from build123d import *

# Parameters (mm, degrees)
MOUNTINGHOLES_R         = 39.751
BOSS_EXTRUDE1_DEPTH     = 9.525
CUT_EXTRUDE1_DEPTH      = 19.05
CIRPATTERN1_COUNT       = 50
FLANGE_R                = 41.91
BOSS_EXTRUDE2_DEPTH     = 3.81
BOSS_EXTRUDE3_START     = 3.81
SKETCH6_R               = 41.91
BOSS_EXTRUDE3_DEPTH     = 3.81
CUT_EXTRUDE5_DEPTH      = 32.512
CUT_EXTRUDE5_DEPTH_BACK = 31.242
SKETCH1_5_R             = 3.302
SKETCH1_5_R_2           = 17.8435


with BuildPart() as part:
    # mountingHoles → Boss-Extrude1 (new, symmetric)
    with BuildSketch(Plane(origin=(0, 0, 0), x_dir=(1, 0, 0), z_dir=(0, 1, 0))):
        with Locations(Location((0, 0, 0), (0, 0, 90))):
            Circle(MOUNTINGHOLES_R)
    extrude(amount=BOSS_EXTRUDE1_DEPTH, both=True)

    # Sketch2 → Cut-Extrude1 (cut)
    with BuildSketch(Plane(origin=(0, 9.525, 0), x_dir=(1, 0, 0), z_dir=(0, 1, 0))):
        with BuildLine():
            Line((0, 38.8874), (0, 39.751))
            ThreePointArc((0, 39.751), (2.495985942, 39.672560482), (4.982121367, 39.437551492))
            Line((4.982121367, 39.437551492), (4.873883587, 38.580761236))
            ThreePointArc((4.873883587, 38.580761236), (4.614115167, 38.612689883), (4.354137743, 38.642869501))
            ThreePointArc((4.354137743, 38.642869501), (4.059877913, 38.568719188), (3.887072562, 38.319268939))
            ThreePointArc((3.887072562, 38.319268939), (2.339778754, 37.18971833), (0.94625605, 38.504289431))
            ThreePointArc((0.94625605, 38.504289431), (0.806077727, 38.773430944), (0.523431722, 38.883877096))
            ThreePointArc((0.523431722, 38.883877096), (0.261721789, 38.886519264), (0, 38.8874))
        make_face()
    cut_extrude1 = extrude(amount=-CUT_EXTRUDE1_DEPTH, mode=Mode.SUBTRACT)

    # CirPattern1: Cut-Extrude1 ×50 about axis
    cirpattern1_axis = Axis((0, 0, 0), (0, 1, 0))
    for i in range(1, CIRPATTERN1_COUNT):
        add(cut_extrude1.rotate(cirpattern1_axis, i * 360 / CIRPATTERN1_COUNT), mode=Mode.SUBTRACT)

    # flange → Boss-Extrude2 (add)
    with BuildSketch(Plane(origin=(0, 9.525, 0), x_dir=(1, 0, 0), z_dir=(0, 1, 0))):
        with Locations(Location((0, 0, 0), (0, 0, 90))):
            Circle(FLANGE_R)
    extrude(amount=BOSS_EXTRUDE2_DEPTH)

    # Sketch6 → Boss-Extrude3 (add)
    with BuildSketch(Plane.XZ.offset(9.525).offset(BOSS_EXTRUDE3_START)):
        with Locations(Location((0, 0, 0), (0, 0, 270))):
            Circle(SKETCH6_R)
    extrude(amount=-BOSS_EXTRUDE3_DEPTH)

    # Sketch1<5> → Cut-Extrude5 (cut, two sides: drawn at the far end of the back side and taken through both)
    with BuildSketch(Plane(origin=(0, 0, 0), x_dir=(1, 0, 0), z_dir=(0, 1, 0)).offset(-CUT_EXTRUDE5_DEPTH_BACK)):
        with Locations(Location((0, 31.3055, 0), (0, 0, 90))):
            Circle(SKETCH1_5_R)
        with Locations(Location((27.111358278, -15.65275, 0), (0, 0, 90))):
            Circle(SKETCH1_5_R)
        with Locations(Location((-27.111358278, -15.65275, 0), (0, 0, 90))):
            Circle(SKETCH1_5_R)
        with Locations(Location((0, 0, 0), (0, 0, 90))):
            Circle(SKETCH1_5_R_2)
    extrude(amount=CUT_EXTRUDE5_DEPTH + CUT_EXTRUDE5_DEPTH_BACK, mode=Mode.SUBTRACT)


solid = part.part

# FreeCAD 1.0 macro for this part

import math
import FreeCAD as App
import Part
import Sketcher
from FreeCAD import Vector
Q = App.Units.Quantity

doc = App.newDocument("Part")
body = doc.addObject("PartDesign::Body", "Body")

# Sketch on XZ plane
sketch1 = body.newObject("Sketcher::SketchObject", "Sketch")
sketch1.AttachmentSupport = (doc.getObject("XZ_Plane"), [""])
sketch1.MapMode = "FlatFace"
sketch1.addGeometry(Part.Circle(Vector(0, 0, 0), Vector(0, 0, 1), 40), False)
sketch1.addConstraint([
    Sketcher.Constraint("Coincident", 0, 3, -1, 1),
    Sketcher.Constraint("Diameter", 0, Q("3.13 in")),
])
pad1 = body.newObject("PartDesign::Pad", "Pad")
pad1.Profile = sketch1
pad1.Length = Q("0.75 in")
pad1.Midplane = True

# Sketch on XZ plane
sketch2 = body.newObject("Sketcher::SketchObject", "Sketch001")
sketch2.AttachmentSupport = (doc.getObject("XZ_Plane"), [""])
sketch2.MapMode = "FlatFace"
sketch2.AttachmentOffset = App.Placement(Vector(0, 0, -0.375 * 25.4), App.Rotation())
sketch2.addGeometry([
    Part.LineSegment(Vector(0, -39.75, 0), Vector(0, -38.89, 0)),  # 0
    Part.ArcOfCircle(Part.Circle(Vector(0, 0, 0), Vector(0, 0, 1), 38.89), math.radians(-90), math.radians(-89.23)),  # 1
    Part.ArcOfCircle(Part.Circle(Vector(0.52, -38.45, 0), Vector(0, 0, 1), 0.43), math.radians(-89), math.radians(-7)),  # 2
    Part.ArcOfCircle(Part.Circle(Vector(2.43, -38.69, 0), Vector(0, 0, 1), 1.5), math.radians(14), math.radians(173)),  # 3
    Part.ArcOfCircle(Part.Circle(Vector(4.31, -38.21, 0), Vector(0, 0, 1), 0.43), math.radians(-166), math.radians(-84)),  # 4
    Part.ArcOfCircle(Part.Circle(Vector(0, 0, 0), Vector(0, 0, 1), 38.89), math.radians(-83.57), math.radians(-82.8)),  # 5
    Part.LineSegment(Vector(4.87, -38.58, 0), Vector(4.98, -39.44, 0)),  # 6
    Part.ArcOfCircle(Part.Circle(Vector(0, 0, 0), Vector(0, 0, 1), 39.75), math.radians(-90), math.radians(-82.8)),  # 7
], False)
sketch2.addConstraint([
    Sketcher.Constraint("Coincident", 0, 2, 1, 1),
    Sketcher.Constraint("Tangent", 1, 2, 2, 1),
    Sketcher.Constraint("Tangent", 2, 2, 3, 2),
    Sketcher.Constraint("Tangent", 3, 1, 4, 1),
    Sketcher.Constraint("Tangent", 4, 2, 5, 1),
    Sketcher.Constraint("Coincident", 5, 2, 6, 1),
    Sketcher.Constraint("Coincident", 6, 2, 7, 2),
    Sketcher.Constraint("Coincident", 7, 1, 0, 1),
    Sketcher.Constraint("Vertical", 0),
    Sketcher.Constraint("Coincident", 1, 3, -1, 1),
    Sketcher.Constraint("Coincident", 5, 3, -1, 1),
    Sketcher.Constraint("Coincident", 7, 3, -1, 1),
    Sketcher.Constraint("Equal", 2, 4),
    Sketcher.Constraint("PointOnObject", 0, 2, -2),
    Sketcher.Constraint("Radius", 1, Q("1.5310002 in")),
    Sketcher.Constraint("Radius", 2, Q("0.017 in")),
    Sketcher.Constraint("Radius", 3, Q("0.059 in")),
    Sketcher.Constraint("Radius", 7, Q("1.565 in")),
    Sketcher.Constraint("Angle", 6, Q("-82.8 deg")),
    Sketcher.Constraint("Distance", 6, Q("0.034 in")),
    Sketcher.Constraint("DistanceY", 4, 2, 3, 1, 0.323601),
    Sketcher.Constraint("DistanceY", 3, 3, 5, 2, 0.1046),
    Sketcher.Constraint("DistanceX", -1, 1, 2, 3, 0.51762),
])
pocket1 = body.newObject("PartDesign::Pocket", "Pocket")
pocket1.Profile = sketch2
pocket1.Length = Q("0.75 in")
pocket1.Reversed = True
doc.recompute()

polarpattern = body.newObject("PartDesign::PolarPattern", "PolarPattern")
polarpattern.Originals = [pocket1]
polarpattern.Axis = (doc.getObject("Y_Axis"), [""])
polarpattern.Angle = 360
polarpattern.Occurrences = 50
body.Tip = polarpattern

# Sketch on XZ plane
sketch3 = body.newObject("Sketcher::SketchObject", "Sketch002")
sketch3.AttachmentSupport = (doc.getObject("XZ_Plane"), [""])
sketch3.MapMode = "FlatFace"
sketch3.AttachmentOffset = App.Placement(Vector(0, 0, -0.375 * 25.4), App.Rotation())
sketch3.addGeometry(Part.Circle(Vector(0, 0, 0), Vector(0, 0, 1), 42), False)
sketch3.addConstraint([
    Sketcher.Constraint("Coincident", 0, 3, -1, 1),
    Sketcher.Constraint("Diameter", 0, Q("3.3 in")),
])
pad2 = body.newObject("PartDesign::Pad", "Pad001")
pad2.Profile = sketch3
pad2.Length = Q("0.15 in")
pad2.Reversed = True

# Sketch on XZ plane
sketch4 = body.newObject("Sketcher::SketchObject", "Sketch003")
sketch4.AttachmentSupport = (doc.getObject("XZ_Plane"), [""])
sketch4.MapMode = "FlatFace"
sketch4.AttachmentOffset = App.Placement(Vector(0, 0, 0.525 * 25.4), App.Rotation())
sketch4.addGeometry(Part.Circle(Vector(0, 0, 0), Vector(0, 0, 1), 42), False)
sketch4.addConstraint([
    Sketcher.Constraint("Coincident", 0, 3, -1, 1),
    Sketcher.Constraint("Diameter", 0, Q("3.3 in")),
])
pad3 = body.newObject("PartDesign::Pad", "Pad002")
pad3.Profile = sketch4
pad3.Length = Q("0.15 in")
pad3.Reversed = True

# Sketch on XZ plane
sketch5 = body.newObject("Sketcher::SketchObject", "Sketch004")
sketch5.AttachmentSupport = (doc.getObject("XZ_Plane"), [""])
sketch5.MapMode = "FlatFace"
sketch5.addGeometry([
    Part.Circle(Vector(0, -31.3, 0), Vector(0, 0, 1), 3.3),
    Part.Circle(Vector(27.1, 15.7, 0), Vector(0, 0, 1), 3.3),
    Part.Circle(Vector(-27.1, 15.7, 0), Vector(0, 0, 1), 3.3),
    Part.Circle(Vector(0, 0, 0), Vector(0, 0, 1), 17.8),
], False)
sketch5.addConstraint([
    Sketcher.Constraint("Coincident", 3, 3, -1, 1),
    Sketcher.Constraint("Equal", 0, 1),
    Sketcher.Constraint("Equal", 1, 2),
    Sketcher.Constraint("Symmetric", 1, 3, 2, 3, -2),
    Sketcher.Constraint("PointOnObject", 0, 3, -2),
    Sketcher.Constraint("Diameter", 0, Q("0.26 in")),
    Sketcher.Constraint("Diameter", 3, Q("1.405 in")),
    Sketcher.Constraint("DistanceY", 0, 3, -1, 1, Q("1.2325 in")),
    Sketcher.Constraint("DistanceX", -1, 1, 1, 3, 27.111358),
    Sketcher.Constraint("DistanceY", -1, 1, 1, 3, 15.65275),
])
pocket2 = body.newObject("PartDesign::Pocket", "Pocket001")
pocket2.Profile = sketch5
pocket2.Type = "ThroughAll"
pocket2.Midplane = True

doc.recompute()
